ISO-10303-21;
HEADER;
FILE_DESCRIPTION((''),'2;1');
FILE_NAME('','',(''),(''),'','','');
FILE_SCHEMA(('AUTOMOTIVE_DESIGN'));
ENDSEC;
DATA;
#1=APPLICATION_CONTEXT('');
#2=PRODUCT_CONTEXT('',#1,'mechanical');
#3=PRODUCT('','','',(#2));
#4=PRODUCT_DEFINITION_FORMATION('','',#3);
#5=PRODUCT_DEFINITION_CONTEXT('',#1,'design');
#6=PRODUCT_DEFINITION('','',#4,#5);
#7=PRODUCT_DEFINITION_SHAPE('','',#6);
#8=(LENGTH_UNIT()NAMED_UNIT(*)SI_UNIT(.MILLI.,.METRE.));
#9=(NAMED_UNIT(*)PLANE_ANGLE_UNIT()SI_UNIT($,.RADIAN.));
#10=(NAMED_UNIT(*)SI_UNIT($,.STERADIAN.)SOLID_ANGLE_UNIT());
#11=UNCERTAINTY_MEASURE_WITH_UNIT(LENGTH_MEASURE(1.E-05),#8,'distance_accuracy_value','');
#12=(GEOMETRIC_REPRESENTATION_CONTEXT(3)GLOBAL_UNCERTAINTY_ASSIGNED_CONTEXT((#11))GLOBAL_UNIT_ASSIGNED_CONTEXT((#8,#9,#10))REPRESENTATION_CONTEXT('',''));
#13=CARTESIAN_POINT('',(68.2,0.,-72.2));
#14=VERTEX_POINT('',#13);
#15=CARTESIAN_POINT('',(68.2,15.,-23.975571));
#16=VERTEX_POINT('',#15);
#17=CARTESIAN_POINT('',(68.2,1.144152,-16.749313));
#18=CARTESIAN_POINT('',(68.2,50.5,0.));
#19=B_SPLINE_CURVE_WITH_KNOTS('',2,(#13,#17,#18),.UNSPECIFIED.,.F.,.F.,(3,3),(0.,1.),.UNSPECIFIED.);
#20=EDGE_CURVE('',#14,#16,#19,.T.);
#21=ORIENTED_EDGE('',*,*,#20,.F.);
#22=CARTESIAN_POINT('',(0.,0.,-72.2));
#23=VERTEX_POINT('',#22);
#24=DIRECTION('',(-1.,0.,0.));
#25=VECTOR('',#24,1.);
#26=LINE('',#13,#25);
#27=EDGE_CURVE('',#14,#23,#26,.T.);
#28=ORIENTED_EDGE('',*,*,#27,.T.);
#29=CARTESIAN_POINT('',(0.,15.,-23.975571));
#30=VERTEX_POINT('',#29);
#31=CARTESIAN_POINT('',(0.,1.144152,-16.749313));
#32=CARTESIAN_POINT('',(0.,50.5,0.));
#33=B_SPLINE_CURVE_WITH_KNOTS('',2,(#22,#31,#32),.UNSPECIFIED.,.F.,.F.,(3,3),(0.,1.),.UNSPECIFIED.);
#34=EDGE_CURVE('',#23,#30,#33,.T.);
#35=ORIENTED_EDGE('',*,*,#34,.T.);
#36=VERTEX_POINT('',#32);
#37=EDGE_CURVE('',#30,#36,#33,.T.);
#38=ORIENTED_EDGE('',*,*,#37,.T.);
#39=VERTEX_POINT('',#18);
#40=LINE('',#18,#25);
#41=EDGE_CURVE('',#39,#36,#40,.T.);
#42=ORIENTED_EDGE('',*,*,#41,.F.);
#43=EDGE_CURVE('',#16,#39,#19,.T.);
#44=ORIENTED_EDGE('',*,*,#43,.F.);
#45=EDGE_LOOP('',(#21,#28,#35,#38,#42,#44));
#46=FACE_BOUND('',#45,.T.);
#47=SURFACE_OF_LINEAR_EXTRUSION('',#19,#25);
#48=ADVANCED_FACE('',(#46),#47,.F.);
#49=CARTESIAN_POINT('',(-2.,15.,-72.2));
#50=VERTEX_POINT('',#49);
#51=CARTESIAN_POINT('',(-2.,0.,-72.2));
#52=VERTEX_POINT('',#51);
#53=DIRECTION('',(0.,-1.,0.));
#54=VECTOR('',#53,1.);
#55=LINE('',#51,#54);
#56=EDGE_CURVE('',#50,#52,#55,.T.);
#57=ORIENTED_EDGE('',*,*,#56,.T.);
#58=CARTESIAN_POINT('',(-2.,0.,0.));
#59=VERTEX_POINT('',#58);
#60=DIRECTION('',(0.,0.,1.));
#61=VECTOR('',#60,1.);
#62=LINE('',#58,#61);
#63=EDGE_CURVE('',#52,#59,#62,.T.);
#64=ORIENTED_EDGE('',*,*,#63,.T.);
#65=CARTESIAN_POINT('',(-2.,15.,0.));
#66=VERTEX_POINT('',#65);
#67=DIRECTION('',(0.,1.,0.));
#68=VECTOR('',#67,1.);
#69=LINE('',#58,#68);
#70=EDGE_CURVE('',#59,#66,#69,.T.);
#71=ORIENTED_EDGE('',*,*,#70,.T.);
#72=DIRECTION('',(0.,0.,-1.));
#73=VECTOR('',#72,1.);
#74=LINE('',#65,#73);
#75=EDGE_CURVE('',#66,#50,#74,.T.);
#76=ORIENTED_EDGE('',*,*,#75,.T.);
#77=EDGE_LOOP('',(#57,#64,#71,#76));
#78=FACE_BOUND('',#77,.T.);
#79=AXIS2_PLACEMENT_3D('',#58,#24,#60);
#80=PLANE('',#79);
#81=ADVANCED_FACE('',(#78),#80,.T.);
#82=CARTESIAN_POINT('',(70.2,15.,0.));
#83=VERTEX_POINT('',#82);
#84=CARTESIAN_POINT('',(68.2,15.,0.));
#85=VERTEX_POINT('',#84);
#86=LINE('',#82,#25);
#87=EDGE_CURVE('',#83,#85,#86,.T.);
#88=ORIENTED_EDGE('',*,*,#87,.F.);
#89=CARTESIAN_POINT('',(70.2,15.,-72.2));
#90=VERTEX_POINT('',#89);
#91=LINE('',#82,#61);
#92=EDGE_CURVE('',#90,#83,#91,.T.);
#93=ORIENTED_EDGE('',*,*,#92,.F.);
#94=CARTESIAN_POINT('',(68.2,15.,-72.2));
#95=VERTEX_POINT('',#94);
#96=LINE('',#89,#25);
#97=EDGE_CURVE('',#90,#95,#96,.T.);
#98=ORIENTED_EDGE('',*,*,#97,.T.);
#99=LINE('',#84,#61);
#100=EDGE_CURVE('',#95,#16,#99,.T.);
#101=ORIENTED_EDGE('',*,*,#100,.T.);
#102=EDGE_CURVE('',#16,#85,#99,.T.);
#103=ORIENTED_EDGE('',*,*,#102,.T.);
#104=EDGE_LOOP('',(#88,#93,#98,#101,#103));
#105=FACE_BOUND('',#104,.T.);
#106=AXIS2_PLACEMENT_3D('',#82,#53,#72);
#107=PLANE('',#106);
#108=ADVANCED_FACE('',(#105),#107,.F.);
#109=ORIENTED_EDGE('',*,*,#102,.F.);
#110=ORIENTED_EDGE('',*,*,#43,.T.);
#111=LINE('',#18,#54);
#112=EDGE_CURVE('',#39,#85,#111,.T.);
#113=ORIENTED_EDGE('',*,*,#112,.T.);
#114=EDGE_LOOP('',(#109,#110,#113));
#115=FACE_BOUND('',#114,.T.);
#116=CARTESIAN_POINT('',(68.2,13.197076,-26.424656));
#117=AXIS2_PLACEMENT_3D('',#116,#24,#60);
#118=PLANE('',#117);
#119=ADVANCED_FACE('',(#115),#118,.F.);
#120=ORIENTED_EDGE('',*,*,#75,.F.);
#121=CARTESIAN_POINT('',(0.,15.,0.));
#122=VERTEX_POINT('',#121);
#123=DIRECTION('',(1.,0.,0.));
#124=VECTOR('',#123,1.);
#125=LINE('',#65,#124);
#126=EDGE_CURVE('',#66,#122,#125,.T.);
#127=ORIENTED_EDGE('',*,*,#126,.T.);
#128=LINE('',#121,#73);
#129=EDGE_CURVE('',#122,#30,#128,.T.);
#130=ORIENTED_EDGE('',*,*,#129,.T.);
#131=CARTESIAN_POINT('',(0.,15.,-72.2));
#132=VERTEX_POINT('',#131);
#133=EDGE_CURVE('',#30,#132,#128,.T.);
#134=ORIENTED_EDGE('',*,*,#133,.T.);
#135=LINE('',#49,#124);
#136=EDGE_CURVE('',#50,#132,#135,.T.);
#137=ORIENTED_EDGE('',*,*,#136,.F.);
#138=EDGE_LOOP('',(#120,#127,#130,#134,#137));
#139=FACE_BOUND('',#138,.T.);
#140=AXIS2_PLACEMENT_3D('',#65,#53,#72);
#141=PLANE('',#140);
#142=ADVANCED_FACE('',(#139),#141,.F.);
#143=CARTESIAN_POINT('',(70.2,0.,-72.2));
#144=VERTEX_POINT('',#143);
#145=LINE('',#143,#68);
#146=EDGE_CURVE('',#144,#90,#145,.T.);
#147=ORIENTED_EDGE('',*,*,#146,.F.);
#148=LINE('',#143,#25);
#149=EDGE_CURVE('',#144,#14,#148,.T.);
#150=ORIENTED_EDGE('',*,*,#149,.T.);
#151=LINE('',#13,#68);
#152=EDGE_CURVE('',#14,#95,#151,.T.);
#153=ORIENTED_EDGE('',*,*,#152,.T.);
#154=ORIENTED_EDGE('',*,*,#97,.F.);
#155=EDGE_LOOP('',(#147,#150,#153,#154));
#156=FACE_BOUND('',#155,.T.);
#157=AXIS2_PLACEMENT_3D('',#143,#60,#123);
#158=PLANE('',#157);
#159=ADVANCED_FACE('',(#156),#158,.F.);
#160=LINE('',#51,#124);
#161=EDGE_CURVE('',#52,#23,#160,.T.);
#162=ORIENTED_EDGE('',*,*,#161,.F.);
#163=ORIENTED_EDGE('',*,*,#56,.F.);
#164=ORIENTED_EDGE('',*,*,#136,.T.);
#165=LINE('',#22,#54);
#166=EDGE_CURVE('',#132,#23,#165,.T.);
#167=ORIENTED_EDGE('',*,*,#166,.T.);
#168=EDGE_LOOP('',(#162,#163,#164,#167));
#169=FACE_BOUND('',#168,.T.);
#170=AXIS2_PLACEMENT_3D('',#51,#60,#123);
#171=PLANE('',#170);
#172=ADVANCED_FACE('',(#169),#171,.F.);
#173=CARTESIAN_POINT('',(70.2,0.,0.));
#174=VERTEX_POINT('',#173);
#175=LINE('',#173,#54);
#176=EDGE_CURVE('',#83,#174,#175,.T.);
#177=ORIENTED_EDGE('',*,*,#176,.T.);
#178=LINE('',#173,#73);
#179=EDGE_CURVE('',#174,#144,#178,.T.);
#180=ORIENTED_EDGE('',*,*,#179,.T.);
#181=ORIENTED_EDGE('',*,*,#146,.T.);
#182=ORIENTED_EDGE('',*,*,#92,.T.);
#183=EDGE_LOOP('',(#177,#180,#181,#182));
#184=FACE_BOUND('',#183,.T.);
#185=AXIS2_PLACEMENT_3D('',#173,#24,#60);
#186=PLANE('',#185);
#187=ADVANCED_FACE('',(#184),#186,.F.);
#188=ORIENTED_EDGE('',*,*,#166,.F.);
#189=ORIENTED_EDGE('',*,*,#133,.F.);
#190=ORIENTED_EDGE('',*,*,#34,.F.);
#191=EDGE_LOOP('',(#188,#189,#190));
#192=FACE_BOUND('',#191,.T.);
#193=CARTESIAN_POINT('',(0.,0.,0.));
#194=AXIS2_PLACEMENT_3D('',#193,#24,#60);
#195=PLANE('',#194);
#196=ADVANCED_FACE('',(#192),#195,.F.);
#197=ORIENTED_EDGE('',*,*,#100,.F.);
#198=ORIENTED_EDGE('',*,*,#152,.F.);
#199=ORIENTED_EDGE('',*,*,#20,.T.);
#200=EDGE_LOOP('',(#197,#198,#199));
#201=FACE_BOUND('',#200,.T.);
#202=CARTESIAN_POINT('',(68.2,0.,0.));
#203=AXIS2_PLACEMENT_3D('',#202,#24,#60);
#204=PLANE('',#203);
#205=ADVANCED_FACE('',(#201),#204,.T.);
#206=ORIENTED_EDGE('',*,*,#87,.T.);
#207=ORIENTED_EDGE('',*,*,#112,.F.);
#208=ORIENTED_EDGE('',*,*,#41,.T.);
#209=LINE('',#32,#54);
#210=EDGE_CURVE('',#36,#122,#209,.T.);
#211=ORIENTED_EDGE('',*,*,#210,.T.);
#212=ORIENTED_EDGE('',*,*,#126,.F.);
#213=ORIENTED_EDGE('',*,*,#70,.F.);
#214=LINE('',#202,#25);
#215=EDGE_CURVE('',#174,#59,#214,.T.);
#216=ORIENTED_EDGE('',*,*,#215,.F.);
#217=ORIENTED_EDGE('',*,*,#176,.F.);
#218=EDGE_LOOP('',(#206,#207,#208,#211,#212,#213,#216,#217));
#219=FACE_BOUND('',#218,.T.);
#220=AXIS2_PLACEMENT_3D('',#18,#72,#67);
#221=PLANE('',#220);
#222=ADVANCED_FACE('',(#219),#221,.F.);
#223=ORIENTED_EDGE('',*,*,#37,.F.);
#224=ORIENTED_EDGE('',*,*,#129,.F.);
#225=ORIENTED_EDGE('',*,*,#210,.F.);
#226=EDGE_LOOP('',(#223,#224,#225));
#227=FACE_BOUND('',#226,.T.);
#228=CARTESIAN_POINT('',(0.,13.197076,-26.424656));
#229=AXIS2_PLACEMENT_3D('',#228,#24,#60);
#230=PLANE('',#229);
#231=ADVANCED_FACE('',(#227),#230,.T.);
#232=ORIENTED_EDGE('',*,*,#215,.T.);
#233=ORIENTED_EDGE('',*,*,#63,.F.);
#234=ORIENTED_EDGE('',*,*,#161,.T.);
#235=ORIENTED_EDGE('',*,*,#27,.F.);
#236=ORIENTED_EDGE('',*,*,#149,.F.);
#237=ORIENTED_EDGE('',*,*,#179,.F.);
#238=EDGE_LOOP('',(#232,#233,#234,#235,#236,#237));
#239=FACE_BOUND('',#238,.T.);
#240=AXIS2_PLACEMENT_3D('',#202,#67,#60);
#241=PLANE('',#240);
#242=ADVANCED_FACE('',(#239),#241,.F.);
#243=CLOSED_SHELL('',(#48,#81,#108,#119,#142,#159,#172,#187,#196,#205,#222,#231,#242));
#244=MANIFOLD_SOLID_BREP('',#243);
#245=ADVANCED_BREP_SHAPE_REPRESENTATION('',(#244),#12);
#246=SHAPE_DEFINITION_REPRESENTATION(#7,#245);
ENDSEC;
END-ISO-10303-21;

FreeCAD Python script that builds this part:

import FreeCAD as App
import Part
import Sketcher

V = App.Vector
Q = App.Units.Quantity

doc = App.newDocument("Part")
body = doc.addObject("PartDesign::Body", "Body")

# Sketch on YZ plane
sketch1 = body.newObject("Sketcher::SketchObject", "Sketch")
sketch1.AttachmentSupport = (doc.getObject("YZ_Plane"), [""])
sketch1.MapMode = "FlatFace"
sketch1.addGeometry(Part.LineSegment(V(0, 0, 0), V(0, -72.2, 0)), False)
sketch1.addGeometry(Part.BSplineCurve([V(50.5, 0, 0), V(1.144152, -16.749313, 0), V(0, -72.2, 0)], [3, 3], [0, 1], False, 2, [1, 1, 1], False), False)
sketch1.addGeometry(Part.LineSegment(V(50.5, 0, 0), V(0, 0, 0)), False)
sketch1.addConstraint(Sketcher.Constraint("Block", 1))
sketch1.addConstraint(Sketcher.Constraint("Coincident", 0, 2, 1, 2))
sketch1.addConstraint(Sketcher.Constraint("Coincident", 1, 1, 2, 1))
sketch1.addConstraint(Sketcher.Constraint("Coincident", 2, 2, 0, 1))
sketch1.addConstraint(Sketcher.Constraint("Vertical", 0))
sketch1.addConstraint(Sketcher.Constraint("Horizontal", 2))
pad1 = body.newObject("PartDesign::Pad", "Pad")
pad1.Profile = sketch1
pad1.Length = 68.2

# Sketch on YZ plane
sketch2 = body.newObject("Sketcher::SketchObject", "Sketch001")
sketch2.AttachmentSupport = (doc.getObject("YZ_Plane"), [""])
sketch2.MapMode = "FlatFace"
sketch2.addGeometry(Part.LineSegment(V(15, -72, 0), V(0, -72, 0)), False)
sketch2.addGeometry(Part.LineSegment(V(0, -72, 0), V(0, 0, 0)), False)
sketch2.addGeometry(Part.LineSegment(V(0, 0, 0), V(15, 0, 0)), False)
sketch2.addGeometry(Part.LineSegment(V(15, 0, 0), V(15, -72, 0)), False)
sketch2.addConstraint(Sketcher.Constraint("Coincident", 0, 2, 1, 1))
sketch2.addConstraint(Sketcher.Constraint("Coincident", 1, 2, 2, 1))
sketch2.addConstraint(Sketcher.Constraint("Coincident", 2, 2, 3, 1))
sketch2.addConstraint(Sketcher.Constraint("Coincident", 3, 2, 0, 1))
sketch2.addConstraint(Sketcher.Constraint("Horizontal", 0))
sketch2.addConstraint(Sketcher.Constraint("Vertical", 1))
sketch2.addConstraint(Sketcher.Constraint("Horizontal", 2))
sketch2.addConstraint(Sketcher.Constraint("Vertical", 3))
sketch2.addConstraint(Sketcher.Constraint("Coincident", 1, 2, -1, 1))
sketch2.addConstraint(Sketcher.Constraint("DistanceX", 0, 2, 0, 1, Q("15 mm")))
sketch2.addConstraint(Sketcher.Constraint("DistanceY", 1, 1, 1, 2, Q("72.2 mm")))
pad2 = body.newObject("PartDesign::Pad", "Pad001")
pad2.Profile = sketch2
pad2.Length = 2
pad2.Reversed = True

# Sketch on YZ plane
sketch3 = body.newObject("Sketcher::SketchObject", "Sketch002")
sketch3.AttachmentSupport = (doc.getObject("YZ_Plane"), [""])
sketch3.MapMode = "FlatFace"
sketch3.AttachmentOffset = App.Placement(V(0, 0, 68.2), App.Rotation())
sketch3.addGeometry(Part.LineSegment(V(15, 0, 0), V(0, 0, 0)), False)
sketch3.addGeometry(Part.LineSegment(V(0, 0, 0), V(0, -72, 0)), False)
sketch3.addGeometry(Part.LineSegment(V(0, -72, 0), V(15, -72, 0)), False)
sketch3.addGeometry(Part.LineSegment(V(15, -72, 0), V(15, 0, 0)), False)
sketch3.addConstraint(Sketcher.Constraint("Coincident", 0, 2, 1, 1))
sketch3.addConstraint(Sketcher.Constraint("Coincident", 1, 2, 2, 1))
sketch3.addConstraint(Sketcher.Constraint("Coincident", 2, 2, 3, 1))
sketch3.addConstraint(Sketcher.Constraint("Coincident", 3, 2, 0, 1))
sketch3.addConstraint(Sketcher.Constraint("Horizontal", 0))
sketch3.addConstraint(Sketcher.Constraint("Vertical", 1))
sketch3.addConstraint(Sketcher.Constraint("Horizontal", 2))
sketch3.addConstraint(Sketcher.Constraint("Vertical", 3))
sketch3.addConstraint(Sketcher.Constraint("Coincident", 0, 2, -1, 1))
sketch3.addConstraint(Sketcher.Constraint("DistanceX", 0, 2, 0, 1, Q("15 mm")))
sketch3.addConstraint(Sketcher.Constraint("DistanceY", 1, 2, 1, 1, Q("72.2 mm")))
pad3 = body.newObject("PartDesign::Pad", "Pad002")
pad3.Profile = sketch3
pad3.Length = 2

doc.recompute()
